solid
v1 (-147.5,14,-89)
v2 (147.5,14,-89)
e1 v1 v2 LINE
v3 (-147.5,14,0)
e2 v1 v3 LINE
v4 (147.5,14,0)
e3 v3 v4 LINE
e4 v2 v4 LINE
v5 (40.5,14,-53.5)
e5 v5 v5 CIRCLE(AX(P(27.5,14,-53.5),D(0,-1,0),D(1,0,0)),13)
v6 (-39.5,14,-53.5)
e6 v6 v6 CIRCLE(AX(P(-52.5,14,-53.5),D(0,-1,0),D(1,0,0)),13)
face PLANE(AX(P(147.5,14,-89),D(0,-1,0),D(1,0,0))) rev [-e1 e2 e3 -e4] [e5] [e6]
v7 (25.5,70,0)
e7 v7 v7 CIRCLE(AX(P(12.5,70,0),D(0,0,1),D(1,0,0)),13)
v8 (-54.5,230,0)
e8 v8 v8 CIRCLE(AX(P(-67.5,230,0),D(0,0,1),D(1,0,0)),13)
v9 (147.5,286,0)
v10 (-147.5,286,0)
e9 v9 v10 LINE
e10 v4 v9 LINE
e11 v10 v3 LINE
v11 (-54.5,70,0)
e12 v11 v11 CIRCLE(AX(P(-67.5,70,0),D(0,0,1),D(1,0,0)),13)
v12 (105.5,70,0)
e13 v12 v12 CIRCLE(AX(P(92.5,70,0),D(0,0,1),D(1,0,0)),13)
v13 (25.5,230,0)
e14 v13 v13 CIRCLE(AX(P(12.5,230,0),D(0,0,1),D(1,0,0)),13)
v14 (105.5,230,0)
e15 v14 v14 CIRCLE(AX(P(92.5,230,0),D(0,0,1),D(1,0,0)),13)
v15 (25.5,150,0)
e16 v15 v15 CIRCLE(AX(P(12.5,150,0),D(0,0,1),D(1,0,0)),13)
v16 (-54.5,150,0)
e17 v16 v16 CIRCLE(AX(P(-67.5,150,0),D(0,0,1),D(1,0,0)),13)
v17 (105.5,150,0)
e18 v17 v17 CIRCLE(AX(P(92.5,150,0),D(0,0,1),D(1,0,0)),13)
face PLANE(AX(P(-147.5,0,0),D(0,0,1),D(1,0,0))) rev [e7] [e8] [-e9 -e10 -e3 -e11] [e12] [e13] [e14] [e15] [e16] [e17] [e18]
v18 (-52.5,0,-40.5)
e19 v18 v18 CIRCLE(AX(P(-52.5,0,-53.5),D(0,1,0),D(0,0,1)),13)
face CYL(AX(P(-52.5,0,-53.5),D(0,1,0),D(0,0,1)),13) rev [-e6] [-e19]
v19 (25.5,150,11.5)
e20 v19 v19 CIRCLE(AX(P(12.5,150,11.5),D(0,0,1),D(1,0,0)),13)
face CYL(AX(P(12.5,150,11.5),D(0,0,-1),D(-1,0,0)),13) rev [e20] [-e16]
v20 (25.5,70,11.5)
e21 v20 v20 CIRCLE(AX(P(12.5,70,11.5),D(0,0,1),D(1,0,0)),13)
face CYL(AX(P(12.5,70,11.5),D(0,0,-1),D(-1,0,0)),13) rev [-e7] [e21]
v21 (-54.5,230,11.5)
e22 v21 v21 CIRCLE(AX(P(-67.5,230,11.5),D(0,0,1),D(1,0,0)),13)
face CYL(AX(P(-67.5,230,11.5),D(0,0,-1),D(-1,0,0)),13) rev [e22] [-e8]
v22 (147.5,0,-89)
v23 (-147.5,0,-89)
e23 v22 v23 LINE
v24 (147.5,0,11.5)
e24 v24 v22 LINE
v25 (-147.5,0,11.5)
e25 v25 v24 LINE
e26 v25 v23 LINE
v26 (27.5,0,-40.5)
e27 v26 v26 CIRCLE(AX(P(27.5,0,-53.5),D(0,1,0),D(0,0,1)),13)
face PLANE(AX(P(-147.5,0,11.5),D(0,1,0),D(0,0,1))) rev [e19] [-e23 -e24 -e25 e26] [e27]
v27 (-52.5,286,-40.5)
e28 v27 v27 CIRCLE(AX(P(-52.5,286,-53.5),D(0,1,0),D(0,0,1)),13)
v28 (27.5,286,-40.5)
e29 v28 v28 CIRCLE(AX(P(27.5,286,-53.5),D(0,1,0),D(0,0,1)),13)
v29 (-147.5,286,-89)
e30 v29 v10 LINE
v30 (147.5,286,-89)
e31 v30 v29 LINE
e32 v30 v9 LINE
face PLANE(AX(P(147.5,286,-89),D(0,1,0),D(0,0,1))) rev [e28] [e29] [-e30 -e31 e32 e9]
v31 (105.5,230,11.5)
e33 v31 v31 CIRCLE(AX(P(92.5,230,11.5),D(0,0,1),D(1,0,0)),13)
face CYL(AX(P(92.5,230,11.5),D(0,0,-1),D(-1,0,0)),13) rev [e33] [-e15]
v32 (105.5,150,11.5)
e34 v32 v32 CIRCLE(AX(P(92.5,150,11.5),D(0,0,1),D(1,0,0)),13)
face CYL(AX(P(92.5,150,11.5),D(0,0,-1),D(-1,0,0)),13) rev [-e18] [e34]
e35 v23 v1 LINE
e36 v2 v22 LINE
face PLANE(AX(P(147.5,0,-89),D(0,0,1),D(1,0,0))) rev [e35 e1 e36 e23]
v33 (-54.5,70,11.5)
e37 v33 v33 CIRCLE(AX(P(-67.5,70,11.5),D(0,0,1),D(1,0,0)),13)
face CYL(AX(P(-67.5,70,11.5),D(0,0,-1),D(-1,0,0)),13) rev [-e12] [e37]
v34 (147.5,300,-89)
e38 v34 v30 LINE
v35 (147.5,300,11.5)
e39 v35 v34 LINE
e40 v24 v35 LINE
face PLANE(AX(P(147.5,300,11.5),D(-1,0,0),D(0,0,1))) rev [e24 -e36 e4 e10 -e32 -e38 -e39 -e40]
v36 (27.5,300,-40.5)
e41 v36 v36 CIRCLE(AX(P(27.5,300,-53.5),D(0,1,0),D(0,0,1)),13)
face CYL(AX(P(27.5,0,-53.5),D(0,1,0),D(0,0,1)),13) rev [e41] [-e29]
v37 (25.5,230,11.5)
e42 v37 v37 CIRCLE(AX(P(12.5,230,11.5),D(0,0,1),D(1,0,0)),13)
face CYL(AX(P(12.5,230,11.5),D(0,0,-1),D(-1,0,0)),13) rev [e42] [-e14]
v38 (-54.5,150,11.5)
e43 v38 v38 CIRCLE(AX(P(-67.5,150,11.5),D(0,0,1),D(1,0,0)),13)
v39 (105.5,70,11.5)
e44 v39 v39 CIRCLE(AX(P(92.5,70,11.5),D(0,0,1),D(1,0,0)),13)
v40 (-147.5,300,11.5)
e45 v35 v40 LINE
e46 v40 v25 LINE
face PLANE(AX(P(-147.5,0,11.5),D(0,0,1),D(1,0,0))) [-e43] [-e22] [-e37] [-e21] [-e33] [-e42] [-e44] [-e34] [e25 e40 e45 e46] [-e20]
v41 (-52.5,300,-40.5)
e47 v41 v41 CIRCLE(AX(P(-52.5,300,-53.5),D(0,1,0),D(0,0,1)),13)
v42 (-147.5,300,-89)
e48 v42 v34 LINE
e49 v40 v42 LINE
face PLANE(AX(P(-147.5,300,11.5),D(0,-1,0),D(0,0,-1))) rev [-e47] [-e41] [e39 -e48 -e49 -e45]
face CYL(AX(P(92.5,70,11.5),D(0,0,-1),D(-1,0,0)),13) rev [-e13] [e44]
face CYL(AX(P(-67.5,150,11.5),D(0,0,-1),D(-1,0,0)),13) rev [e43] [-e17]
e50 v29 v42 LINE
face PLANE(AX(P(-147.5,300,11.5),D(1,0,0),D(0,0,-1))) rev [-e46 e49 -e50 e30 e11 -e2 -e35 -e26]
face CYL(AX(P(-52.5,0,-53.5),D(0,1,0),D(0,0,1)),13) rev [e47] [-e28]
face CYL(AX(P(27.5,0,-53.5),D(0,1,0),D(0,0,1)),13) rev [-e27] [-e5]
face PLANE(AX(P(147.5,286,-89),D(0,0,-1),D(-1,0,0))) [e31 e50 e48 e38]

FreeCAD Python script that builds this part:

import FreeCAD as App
import Part
import Sketcher

V = App.Vector

doc = App.newDocument("Part")
body = doc.addObject("PartDesign::Body", "Body")

# Sketch on XY plane
sketch1 = body.newObject("Sketcher::SketchObject", "Sketch")
sketch1.AttachmentSupport = (doc.getObject("XY_Plane"), [""])
sketch1.MapMode = "FlatFace"
sketch1.addGeometry(Part.LineSegment(V(-148, 300, 0), V(-148, 0, 0)), False)
sketch1.addGeometry(Part.LineSegment(V(-148, 0, 0), V(148, 0, 0)), False)
sketch1.addGeometry(Part.LineSegment(V(148, 0, 0), V(148, 300, 0)), False)
sketch1.addGeometry(Part.LineSegment(V(148, 300, 0), V(-148, 300, 0)), False)
sketch1.addGeometry(Part.Circle(V(-68, 70, 0), V(0, 0, 1), 13), False)
sketch1.addGeometry(Part.Circle(V(12, 70, 0), V(0, 0, 1), 13), False)
sketch1.addGeometry(Part.Circle(V(92, 70, 0), V(0, 0, 1), 13), False)
sketch1.addGeometry(Part.Circle(V(-68, 150, 0), V(0, 0, 1), 13), False)
sketch1.addGeometry(Part.Circle(V(-68, 230, 0), V(0, 0, 1), 13), False)
sketch1.addGeometry(Part.Circle(V(12, 150, 0), V(0, 0, 1), 13), False)
sketch1.addGeometry(Part.Circle(V(92, 150, 0), V(0, 0, 1), 13), False)
sketch1.addGeometry(Part.Circle(V(12, 230, 0), V(0, 0, 1), 13), False)
sketch1.addGeometry(Part.Circle(V(92, 230, 0), V(0, 0, 1), 13), False)
sketch1.addConstraint(Sketcher.Constraint("Coincident", 0, 2, 1, 1))
sketch1.addConstraint(Sketcher.Constraint("Coincident", 1, 2, 2, 1))
sketch1.addConstraint(Sketcher.Constraint("Coincident", 2, 2, 3, 1))
sketch1.addConstraint(Sketcher.Constraint("Coincident", 3, 2, 0, 1))
sketch1.addConstraint(Sketcher.Constraint("Vertical", 0))
sketch1.addConstraint(Sketcher.Constraint("Horizontal", 1))
sketch1.addConstraint(Sketcher.Constraint("Vertical", 2))
sketch1.addConstraint(Sketcher.Constraint("Horizontal", 3))
sketch1.addConstraint(Sketcher.Constraint("Equal", 4, 5))
sketch1.addConstraint(Sketcher.Constraint("Equal", 5, 6))
sketch1.addConstraint(Sketcher.Constraint("Equal", 6, 7))
sketch1.addConstraint(Sketcher.Constraint("Equal", 7, 8))
sketch1.addConstraint(Sketcher.Constraint("Equal", 8, 9))
sketch1.addConstraint(Sketcher.Constraint("Equal", 9, 10))
sketch1.addConstraint(Sketcher.Constraint("Equal", 10, 11))
sketch1.addConstraint(Sketcher.Constraint("Equal", 11, 12))
sketch1.addConstraint(Sketcher.Constraint("Symmetric", 0, 2, 1, 2, -1, 1))
sketch1.addConstraint(Sketcher.Constraint("Horizontal", 4, 3, 5, 3))
sketch1.addConstraint(Sketcher.Constraint("Horizontal", 5, 3, 6, 3))
sketch1.addConstraint(Sketcher.Constraint("Horizontal", 7, 3, 9, 3))
sketch1.addConstraint(Sketcher.Constraint("Horizontal", 9, 3, 10, 3))
sketch1.addConstraint(Sketcher.Constraint("Horizontal", 8, 3, 11, 3))
sketch1.addConstraint(Sketcher.Constraint("Horizontal", 11, 3, 12, 3))
sketch1.addConstraint(Sketcher.Constraint("Vertical", 4, 3, 7, 3))
sketch1.addConstraint(Sketcher.Constraint("Vertical", 7, 3, 8, 3))
sketch1.addConstraint(Sketcher.Constraint("Vertical", 5, 3, 9, 3))
sketch1.addConstraint(Sketcher.Constraint("Vertical", 6, 3, 10, 3))
sketch1.addConstraint(Sketcher.Constraint("Vertical", 9, 3, 11, 3))
sketch1.addConstraint(Sketcher.Constraint("Vertical", 10, 3, 12, 3))
sketch1.addConstraint(Sketcher.Constraint("Diameter", 4, 26.0))
sketch1.addConstraint(Sketcher.Constraint("DistanceX", 1, 1, 1, 2, 295.0))
sketch1.addConstraint(Sketcher.Constraint("DistanceY", 0, 2, 0, 1, 300.0))
sketch1.addConstraint(Sketcher.Constraint("DistanceY", -1, 1, 4, 3, 70.0))
sketch1.addConstraint(Sketcher.Constraint("DistanceY", -1, 1, 7, 3, 150.0))
sketch1.addConstraint(Sketcher.Constraint("DistanceY", -1, 1, 8, 3, 230.0))
sketch1.addConstraint(Sketcher.Constraint("DistanceX", 4, 3, 5, 3, 80.0))
sketch1.addConstraint(Sketcher.Constraint("DistanceX", 5, 3, 6, 3, 80.0))
sketch1.addConstraint(Sketcher.Constraint("DistanceX", 0, 2, 4, 3, 80.0))
pad1 = body.newObject("PartDesign::Pad", "Pad")
pad1.Profile = sketch1
pad1.Length = 11.5

# Sketch on XY plane
sketch2 = body.newObject("Sketcher::SketchObject", "Sketch001")
sketch2.AttachmentSupport = (doc.getObject("XY_Plane"), [""])
sketch2.MapMode = "FlatFace"
sketch2.addGeometry(Part.LineSegment(V(148, 300, 0), V(148, 286, 0)), False)
sketch2.addGeometry(Part.LineSegment(V(148, 286, 0), V(-148, 286, 0)), False)
sketch2.addGeometry(Part.LineSegment(V(-148, 286, 0), V(-148, 300, 0)), False)
sketch2.addGeometry(Part.LineSegment(V(-148, 300, 0), V(148, 300, 0)), False)
sketch2.addGeometry(Part.LineSegment(V(148, 14, 0), V(148, 0, 0)), False)
sketch2.addGeometry(Part.LineSegment(V(148, 0, 0), V(-148, 0, 0)), False)
sketch2.addGeometry(Part.LineSegment(V(-148, 0, 0), V(-148, 14, 0)), False)
sketch2.addGeometry(Part.LineSegment(V(-148, 14, 0), V(148, 14, 0)), False)
sketch2.addConstraint(Sketcher.Constraint("Coincident", 0, 2, 1, 1))
sketch2.addConstraint(Sketcher.Constraint("Coincident", 1, 2, 2, 1))
sketch2.addConstraint(Sketcher.Constraint("Coincident", 2, 2, 3, 1))
sketch2.addConstraint(Sketcher.Constraint("Coincident", 3, 2, 0, 1))
sketch2.addConstraint(Sketcher.Constraint("Coincident", 4, 2, 5, 1))
sketch2.addConstraint(Sketcher.Constraint("Coincident", 5, 2, 6, 1))
sketch2.addConstraint(Sketcher.Constraint("Coincident", 6, 2, 7, 1))
sketch2.addConstraint(Sketcher.Constraint("Coincident", 7, 2, 4, 1))
sketch2.addConstraint(Sketcher.Constraint("Vertical", 0))
sketch2.addConstraint(Sketcher.Constraint("Horizontal", 1))
sketch2.addConstraint(Sketcher.Constraint("Vertical", 2))
sketch2.addConstraint(Sketcher.Constraint("Horizontal", 3))
sketch2.addConstraint(Sketcher.Constraint("Vertical", 4))
sketch2.addConstraint(Sketcher.Constraint("Horizontal", 5))
sketch2.addConstraint(Sketcher.Constraint("Vertical", 6))
sketch2.addConstraint(Sketcher.Constraint("Horizontal", 7))
sketch2.addConstraint(Sketcher.Constraint("Symmetric", 4, 2, 5, 2, -1, 1))
sketch2.addConstraint(Sketcher.Constraint("Vertical", 3, 2, 4, 2))
sketch2.addConstraint(Sketcher.Constraint("Vertical", 2, 2, 5, 2))
sketch2.addConstraint(Sketcher.Constraint("Equal", 2, 4))
sketch2.addConstraint(Sketcher.Constraint("DistanceX", 1, 2, 1, 1, 295.0))
sketch2.addConstraint(Sketcher.Constraint("DistanceY", 0, 2, 0, 1, 14.0))
sketch2.addConstraint(Sketcher.Constraint("DistanceY", -1, 1, 0, 2, 286.0))
pad2 = body.newObject("PartDesign::Pad", "Pad001")
pad2.Profile = sketch2
pad2.Length = 89
pad2.Reversed = True

# Sketch on XZ plane
sketch3 = body.newObject("Sketcher::SketchObject", "Sketch002")
sketch3.AttachmentSupport = (doc.getObject("XZ_Plane"), [""])
sketch3.MapMode = "FlatFace"
sketch3.AttachmentOffset = App.Placement(V(0, 0, -300), App.Rotation())
sketch3.addGeometry(Part.Circle(V(28, -54, 0), V(0, 0, 1), 13), False)
sketch3.addGeometry(Part.Circle(V(-52, -54, 0), V(0, 0, 1), 13), False)
sketch3.addConstraint(Sketcher.Constraint("Equal", 0, 1))
sketch3.addConstraint(Sketcher.Constraint("Horizontal", 0, 3, 1, 3))
sketch3.addConstraint(Sketcher.Constraint("Diameter", 0, 26.0))
sketch3.addConstraint(Sketcher.Constraint("DistanceX", 1, 3, 0, 3, 80.0))
sketch3.addConstraint(Sketcher.Constraint("DistanceX", -1, 1, 0, 3, 27.5))
sketch3.addConstraint(Sketcher.Constraint("DistanceY", 0, 3, -1, 1, 53.5))
pocket1 = body.newObject("PartDesign::Pocket", "Pocket")
pocket1.Profile = sketch3
pocket1.Type = "ThroughAll"
pocket1.Reversed = True

doc.recompute()
